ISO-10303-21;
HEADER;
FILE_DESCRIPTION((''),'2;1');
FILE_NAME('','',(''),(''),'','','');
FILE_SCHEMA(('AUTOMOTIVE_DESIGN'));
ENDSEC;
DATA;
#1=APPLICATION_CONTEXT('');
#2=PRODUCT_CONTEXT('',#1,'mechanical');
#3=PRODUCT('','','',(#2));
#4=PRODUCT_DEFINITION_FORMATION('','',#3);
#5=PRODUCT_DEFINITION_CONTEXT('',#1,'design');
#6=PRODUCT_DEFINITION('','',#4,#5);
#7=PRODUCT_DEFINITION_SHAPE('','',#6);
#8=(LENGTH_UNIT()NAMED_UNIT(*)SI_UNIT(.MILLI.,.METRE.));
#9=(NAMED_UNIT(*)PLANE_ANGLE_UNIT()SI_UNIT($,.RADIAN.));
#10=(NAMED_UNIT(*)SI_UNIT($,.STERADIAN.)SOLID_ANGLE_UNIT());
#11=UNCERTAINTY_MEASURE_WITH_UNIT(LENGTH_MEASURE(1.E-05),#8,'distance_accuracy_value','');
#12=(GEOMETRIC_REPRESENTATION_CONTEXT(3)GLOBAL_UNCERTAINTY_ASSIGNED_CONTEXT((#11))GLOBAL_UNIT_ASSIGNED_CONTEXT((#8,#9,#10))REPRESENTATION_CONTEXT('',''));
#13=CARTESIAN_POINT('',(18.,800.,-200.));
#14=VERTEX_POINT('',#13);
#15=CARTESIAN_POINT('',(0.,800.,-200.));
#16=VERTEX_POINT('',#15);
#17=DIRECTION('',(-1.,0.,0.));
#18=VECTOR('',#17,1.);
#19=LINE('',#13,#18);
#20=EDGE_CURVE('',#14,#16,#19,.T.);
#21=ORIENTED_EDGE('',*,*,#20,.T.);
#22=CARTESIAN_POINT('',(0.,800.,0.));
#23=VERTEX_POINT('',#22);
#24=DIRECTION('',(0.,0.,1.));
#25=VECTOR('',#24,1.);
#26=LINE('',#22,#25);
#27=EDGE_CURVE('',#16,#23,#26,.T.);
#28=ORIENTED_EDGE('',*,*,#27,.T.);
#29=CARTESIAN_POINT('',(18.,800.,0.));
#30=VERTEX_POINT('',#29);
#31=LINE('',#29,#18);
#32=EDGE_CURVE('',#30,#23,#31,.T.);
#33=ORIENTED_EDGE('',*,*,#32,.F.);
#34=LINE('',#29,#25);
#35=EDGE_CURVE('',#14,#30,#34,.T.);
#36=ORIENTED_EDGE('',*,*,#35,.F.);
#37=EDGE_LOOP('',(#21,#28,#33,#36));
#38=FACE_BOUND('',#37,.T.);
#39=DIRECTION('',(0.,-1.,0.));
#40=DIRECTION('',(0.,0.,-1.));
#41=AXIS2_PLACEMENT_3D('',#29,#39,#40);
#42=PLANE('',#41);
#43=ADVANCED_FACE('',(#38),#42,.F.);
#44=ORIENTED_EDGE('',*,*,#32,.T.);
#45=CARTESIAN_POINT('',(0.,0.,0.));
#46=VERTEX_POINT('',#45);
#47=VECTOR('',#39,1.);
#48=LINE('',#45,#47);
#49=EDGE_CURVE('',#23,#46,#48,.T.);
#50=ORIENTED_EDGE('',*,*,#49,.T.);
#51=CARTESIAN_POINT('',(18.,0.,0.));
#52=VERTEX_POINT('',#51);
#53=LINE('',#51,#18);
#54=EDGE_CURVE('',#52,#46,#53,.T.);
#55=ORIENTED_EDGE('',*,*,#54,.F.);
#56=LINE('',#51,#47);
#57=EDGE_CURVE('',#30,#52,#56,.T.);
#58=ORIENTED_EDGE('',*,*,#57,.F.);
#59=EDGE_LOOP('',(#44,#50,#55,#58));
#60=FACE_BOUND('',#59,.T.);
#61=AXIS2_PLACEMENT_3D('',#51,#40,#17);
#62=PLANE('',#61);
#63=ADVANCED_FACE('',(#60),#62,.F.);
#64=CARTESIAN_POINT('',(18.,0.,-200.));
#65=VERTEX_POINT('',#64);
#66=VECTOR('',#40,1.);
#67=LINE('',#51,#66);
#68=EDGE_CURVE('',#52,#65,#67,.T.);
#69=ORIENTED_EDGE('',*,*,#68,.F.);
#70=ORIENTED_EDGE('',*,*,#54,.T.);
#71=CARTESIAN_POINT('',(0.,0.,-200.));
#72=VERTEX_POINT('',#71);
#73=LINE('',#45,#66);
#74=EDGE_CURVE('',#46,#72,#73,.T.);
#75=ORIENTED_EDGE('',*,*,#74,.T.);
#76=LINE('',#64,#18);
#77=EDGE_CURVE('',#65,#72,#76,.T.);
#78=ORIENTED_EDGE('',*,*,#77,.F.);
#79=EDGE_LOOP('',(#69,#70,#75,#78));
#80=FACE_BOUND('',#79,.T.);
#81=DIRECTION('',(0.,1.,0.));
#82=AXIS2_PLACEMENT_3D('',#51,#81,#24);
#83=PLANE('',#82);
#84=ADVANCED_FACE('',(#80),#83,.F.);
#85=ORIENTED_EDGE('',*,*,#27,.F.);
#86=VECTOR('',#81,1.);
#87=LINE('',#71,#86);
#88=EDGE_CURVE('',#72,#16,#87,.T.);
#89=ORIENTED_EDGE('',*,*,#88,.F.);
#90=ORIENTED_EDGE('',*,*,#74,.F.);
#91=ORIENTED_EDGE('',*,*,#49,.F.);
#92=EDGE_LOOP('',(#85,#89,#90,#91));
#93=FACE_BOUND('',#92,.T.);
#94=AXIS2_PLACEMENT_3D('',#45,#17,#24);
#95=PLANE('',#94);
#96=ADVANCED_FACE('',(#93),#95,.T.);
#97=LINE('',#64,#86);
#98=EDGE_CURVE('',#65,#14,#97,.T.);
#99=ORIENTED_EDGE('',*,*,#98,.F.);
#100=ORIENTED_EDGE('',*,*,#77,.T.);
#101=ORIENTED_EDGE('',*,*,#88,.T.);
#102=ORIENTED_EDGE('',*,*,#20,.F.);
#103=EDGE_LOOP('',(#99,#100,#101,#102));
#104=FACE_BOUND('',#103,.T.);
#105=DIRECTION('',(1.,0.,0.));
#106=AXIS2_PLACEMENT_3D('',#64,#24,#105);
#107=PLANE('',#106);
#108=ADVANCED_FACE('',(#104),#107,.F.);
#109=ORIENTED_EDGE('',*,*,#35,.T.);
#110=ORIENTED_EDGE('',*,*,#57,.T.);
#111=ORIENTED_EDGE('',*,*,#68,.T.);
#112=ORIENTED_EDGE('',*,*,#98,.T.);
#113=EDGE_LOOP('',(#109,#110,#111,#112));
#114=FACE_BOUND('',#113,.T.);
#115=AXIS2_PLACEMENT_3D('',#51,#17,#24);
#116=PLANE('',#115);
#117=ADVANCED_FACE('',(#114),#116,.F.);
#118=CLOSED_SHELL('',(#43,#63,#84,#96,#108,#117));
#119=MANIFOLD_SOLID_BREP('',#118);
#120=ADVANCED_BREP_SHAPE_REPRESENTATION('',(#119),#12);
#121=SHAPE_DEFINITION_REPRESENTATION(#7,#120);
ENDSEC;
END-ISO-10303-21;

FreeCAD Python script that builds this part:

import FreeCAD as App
import Part
import Sketcher

V = App.Vector

doc = App.newDocument("Part")
body = doc.addObject("PartDesign::Body", "Body")

sketch1 = doc.addObject("Sketcher::SketchObject", "Sketch")
body.addObject(sketch1)
sketch1.AttachmentSupport = (doc.YZ_Plane, [""])
sketch1.MapMode = "FlatFace"
sketch1.addGeometry([
    Part.LineSegment(V(800, 0, 0), V(0, 0, 0)),
    Part.LineSegment(V(0, 0, 0), V(0, -200, 0)),
    Part.LineSegment(V(0, -200, 0), V(800, -200, 0)),
    Part.LineSegment(V(800, -200, 0), V(800, 0, 0)),
], False)
sketch1.addConstraint([
    Sketcher.Constraint("Coincident", 0, 2, 1, 1),
    Sketcher.Constraint("Coincident", 1, 2, 2, 1),
    Sketcher.Constraint("Coincident", 2, 2, 3, 1),
    Sketcher.Constraint("Coincident", 3, 2, 0, 1),
    Sketcher.Constraint("Horizontal", 0),
    Sketcher.Constraint("Vertical", 1),
    Sketcher.Constraint("Horizontal", 2),
    Sketcher.Constraint("Vertical", 3),
    Sketcher.Constraint("Coincident", 0, 2, -1, 1),
    Sketcher.Constraint("DistanceX", 0, 2, 0, 1, 800.0),
    Sketcher.Constraint("DistanceY", 1, 2, 1, 1, 200.0),
])
pad1 = doc.addObject("PartDesign::Pad", "Pad")
body.addObject(pad1)
pad1.Profile = sketch1
pad1.Length = 18

doc.recompute()
